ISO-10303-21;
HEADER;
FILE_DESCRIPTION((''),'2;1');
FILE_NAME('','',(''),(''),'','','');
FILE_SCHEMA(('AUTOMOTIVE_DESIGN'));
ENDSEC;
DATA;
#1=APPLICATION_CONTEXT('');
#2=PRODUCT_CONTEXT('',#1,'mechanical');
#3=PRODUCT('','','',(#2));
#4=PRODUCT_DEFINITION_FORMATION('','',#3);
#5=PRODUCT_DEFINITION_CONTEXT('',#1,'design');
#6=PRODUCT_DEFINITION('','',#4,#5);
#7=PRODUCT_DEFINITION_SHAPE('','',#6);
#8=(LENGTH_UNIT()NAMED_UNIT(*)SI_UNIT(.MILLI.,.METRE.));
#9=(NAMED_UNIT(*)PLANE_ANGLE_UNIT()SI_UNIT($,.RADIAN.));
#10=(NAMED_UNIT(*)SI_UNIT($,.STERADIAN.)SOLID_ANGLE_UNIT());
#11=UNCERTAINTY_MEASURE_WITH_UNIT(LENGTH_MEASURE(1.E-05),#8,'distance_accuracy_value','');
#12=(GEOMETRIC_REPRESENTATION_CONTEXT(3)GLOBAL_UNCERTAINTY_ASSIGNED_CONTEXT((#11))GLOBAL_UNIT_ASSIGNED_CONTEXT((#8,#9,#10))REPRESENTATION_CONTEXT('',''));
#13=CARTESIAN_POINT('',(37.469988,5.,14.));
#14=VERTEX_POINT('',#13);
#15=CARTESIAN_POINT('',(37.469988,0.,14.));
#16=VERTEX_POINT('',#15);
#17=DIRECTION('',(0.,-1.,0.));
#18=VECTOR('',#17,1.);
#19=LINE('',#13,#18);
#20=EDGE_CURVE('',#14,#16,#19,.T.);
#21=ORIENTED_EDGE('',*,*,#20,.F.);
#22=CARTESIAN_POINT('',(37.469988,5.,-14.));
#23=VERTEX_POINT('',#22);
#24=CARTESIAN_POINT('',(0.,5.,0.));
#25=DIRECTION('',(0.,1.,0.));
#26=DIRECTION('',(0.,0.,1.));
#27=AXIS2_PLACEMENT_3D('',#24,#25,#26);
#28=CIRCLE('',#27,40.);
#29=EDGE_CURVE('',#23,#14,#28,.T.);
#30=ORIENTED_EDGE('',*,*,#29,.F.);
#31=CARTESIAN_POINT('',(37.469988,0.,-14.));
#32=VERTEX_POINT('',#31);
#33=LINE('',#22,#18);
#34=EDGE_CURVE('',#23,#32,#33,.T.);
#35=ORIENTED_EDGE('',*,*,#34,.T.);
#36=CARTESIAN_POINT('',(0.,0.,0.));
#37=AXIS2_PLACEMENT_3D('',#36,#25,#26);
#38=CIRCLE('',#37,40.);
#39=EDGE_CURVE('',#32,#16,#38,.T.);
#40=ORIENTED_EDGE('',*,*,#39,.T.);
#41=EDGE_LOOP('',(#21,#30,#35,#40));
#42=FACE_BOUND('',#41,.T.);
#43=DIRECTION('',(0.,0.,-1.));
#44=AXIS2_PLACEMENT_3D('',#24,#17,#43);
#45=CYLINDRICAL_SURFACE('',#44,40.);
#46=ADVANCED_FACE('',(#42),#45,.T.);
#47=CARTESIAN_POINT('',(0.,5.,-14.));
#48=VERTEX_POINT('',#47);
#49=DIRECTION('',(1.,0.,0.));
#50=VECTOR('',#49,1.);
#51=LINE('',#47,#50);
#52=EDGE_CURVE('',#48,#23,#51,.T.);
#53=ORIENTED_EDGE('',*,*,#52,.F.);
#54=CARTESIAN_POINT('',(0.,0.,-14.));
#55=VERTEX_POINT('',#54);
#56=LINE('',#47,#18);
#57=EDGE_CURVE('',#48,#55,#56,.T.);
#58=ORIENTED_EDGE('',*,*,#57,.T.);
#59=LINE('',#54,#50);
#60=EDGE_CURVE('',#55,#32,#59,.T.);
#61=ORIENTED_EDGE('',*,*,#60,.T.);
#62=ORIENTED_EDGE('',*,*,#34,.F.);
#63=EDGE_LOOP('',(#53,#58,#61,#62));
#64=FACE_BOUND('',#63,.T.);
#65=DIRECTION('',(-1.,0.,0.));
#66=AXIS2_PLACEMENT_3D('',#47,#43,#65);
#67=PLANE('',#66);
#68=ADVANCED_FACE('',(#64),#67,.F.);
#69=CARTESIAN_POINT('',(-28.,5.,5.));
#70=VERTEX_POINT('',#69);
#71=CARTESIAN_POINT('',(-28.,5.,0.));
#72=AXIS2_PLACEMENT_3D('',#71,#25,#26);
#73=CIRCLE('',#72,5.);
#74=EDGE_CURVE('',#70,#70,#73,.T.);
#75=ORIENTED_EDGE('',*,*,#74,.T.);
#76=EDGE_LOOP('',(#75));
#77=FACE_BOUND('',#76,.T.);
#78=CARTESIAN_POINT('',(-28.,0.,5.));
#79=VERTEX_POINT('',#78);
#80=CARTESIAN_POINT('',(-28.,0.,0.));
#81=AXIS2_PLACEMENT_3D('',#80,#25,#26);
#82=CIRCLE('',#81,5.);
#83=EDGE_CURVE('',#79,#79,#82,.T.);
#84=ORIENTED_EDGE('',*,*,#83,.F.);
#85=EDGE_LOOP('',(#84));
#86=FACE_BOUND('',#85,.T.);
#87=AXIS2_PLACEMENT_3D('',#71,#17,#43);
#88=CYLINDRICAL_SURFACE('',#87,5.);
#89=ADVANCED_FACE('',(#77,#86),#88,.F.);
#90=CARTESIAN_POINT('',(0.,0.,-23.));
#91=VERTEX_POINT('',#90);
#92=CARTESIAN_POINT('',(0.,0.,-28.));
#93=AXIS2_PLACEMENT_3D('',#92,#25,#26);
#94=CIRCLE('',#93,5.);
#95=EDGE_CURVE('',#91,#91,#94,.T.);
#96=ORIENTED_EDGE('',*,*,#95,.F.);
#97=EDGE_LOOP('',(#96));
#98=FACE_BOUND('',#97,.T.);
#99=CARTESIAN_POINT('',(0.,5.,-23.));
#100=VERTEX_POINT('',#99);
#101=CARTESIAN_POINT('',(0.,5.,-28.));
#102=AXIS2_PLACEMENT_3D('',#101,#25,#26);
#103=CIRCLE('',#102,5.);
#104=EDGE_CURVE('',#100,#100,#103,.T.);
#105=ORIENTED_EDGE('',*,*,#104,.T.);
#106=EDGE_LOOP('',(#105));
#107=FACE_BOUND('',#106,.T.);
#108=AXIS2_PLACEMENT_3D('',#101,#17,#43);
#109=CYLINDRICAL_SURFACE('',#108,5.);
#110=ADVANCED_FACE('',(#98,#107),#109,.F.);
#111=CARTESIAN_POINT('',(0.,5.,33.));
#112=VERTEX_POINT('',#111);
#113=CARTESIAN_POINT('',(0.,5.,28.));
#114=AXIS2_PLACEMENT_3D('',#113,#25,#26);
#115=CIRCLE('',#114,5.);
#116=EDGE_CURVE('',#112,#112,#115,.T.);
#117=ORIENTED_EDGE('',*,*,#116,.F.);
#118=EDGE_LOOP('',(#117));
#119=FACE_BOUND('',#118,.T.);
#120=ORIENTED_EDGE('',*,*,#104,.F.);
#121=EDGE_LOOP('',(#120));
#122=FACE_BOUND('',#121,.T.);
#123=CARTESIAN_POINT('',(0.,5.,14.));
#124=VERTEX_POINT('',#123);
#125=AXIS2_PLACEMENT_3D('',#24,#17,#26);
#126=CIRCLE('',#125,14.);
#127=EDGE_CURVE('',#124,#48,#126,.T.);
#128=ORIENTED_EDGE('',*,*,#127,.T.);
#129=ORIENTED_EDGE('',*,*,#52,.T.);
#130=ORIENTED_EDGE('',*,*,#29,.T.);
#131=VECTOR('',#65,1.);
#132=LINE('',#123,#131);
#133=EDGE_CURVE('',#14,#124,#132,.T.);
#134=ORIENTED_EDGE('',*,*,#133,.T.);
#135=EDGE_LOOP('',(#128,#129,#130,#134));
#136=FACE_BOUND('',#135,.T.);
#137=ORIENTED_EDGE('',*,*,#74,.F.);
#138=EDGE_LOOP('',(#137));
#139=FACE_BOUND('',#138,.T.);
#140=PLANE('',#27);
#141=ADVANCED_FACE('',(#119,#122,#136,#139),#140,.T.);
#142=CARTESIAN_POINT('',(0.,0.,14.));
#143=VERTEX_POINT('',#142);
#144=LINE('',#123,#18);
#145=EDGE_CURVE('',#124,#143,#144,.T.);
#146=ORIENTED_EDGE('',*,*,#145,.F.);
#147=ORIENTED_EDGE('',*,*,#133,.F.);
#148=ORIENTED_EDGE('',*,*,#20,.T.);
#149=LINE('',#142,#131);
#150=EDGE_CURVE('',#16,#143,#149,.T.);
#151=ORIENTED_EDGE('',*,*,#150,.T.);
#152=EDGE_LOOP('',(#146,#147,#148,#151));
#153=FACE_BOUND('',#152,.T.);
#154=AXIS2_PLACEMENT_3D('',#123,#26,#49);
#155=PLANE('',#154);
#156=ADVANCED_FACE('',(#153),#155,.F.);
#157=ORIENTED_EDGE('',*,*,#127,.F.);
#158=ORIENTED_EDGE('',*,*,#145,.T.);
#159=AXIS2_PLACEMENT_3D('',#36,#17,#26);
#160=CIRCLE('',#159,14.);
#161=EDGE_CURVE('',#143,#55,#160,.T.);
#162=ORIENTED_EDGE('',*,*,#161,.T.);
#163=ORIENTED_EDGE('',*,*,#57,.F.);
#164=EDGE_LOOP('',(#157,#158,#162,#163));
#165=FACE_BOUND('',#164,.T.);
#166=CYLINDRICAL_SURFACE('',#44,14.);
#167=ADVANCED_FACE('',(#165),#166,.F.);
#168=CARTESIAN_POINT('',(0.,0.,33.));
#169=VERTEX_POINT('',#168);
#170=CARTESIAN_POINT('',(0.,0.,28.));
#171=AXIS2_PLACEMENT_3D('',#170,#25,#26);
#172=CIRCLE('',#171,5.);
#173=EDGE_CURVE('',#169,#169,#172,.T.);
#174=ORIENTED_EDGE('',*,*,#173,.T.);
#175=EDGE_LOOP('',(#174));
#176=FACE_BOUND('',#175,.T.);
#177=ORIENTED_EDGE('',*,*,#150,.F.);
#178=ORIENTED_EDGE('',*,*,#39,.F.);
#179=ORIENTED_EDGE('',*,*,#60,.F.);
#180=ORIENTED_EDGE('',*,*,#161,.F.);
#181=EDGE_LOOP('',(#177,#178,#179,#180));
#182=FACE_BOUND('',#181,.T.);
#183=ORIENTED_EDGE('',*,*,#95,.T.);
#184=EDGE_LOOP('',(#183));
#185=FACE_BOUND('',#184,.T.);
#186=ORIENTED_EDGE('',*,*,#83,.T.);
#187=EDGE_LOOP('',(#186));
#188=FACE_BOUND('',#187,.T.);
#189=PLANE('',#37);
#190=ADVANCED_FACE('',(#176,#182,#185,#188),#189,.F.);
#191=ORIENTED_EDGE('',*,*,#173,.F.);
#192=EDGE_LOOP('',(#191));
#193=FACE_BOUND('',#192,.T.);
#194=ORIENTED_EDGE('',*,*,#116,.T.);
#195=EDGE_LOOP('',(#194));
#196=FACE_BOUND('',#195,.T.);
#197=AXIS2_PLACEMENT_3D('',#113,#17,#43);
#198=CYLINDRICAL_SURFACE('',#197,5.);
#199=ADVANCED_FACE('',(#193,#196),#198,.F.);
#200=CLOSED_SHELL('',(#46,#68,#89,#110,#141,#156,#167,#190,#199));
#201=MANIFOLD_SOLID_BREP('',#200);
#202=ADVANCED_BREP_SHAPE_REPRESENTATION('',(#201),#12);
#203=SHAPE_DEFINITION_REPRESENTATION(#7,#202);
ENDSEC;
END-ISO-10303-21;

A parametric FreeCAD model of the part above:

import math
import FreeCAD as App
import Part
import Sketcher

V = App.Vector
Q = App.Units.Quantity

doc = App.newDocument("Part")
body = doc.addObject("PartDesign::Body", "Body")

# Sketch on XZ plane
sketch1 = body.newObject("Sketcher::SketchObject", "Sketch")
sketch1.AttachmentSupport = (doc.getObject("XZ_Plane"), [""])
sketch1.MapMode = "FlatFace"
sketch1.addGeometry([
    Part.LineSegment(V(0, -14, 0), V(37, -14, 0)),  # 0
    Part.ArcOfCircle(Part.Circle(V(0, 0, 0), V(0, 0, 1), 40), math.radians(20), math.radians(340)),  # 1
    Part.LineSegment(V(37, 14, 0), V(0, 14, 0)),  # 2
    Part.ArcOfCircle(Part.Circle(V(0, 0, 0), V(0, 0, 1), 14), math.radians(90), math.radians(270)),  # 3
    Part.Circle(V(0, 28, 0), V(0, 0, 1), 5),  # 4
    Part.Circle(V(-28, 0, 0), V(0, 0, 1), 5),  # 5
    Part.Circle(V(0, -28, 0), V(0, 0, 1), 5),  # 6
], False)
sketch1.addConstraint([
    Sketcher.Constraint("Coincident", 0, 2, 1, 2),
    Sketcher.Constraint("Coincident", 1, 1, 2, 1),
    Sketcher.Constraint("Tangent", 2, 2, 3, 1),
    Sketcher.Constraint("Tangent", 3, 2, 0, 1),
    Sketcher.Constraint("Horizontal", 0),
    Sketcher.Constraint("Horizontal", 2),
    Sketcher.Constraint("Coincident", 1, 3, -1, 1),
    Sketcher.Constraint("Coincident", 3, 3, -1, 1),
    Sketcher.Constraint("Equal", 4, 5),
    Sketcher.Constraint("Equal", 5, 6),
    Sketcher.Constraint("Symmetric", 4, 3, 6, 3, -1, 1),
    Sketcher.Constraint("PointOnObject", 4, 3, -2),
    Sketcher.Constraint("PointOnObject", 5, 3, -1),
    Sketcher.Constraint("Diameter", 4, Q("10 mm")),
    Sketcher.Constraint("Radius", 1, Q("40 mm")),
    Sketcher.Constraint("Radius", 3, Q("14 mm")),
    Sketcher.Constraint("DistanceY", -1, 1, 4, 3, Q("28 mm")),
    Sketcher.Constraint("DistanceX", 5, 3, -1, 1, Q("28 mm")),
])
pad1 = body.newObject("PartDesign::Pad", "Pad")
pad1.Profile = sketch1
pad1.Length = 5
pad1.Reversed = True

doc.recompute()
